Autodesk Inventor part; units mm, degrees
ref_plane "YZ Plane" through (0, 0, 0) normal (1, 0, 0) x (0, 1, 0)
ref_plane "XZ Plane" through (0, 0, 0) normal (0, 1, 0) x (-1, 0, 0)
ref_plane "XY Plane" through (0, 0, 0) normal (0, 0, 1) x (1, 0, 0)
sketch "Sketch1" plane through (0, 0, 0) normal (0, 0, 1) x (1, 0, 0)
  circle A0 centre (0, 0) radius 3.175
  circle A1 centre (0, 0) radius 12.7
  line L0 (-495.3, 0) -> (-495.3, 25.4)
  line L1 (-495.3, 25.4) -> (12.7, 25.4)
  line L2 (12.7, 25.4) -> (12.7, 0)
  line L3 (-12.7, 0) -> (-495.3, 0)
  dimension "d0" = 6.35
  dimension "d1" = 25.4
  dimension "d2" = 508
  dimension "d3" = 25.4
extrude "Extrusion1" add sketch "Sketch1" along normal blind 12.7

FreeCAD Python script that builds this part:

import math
import FreeCAD as App
import Part
import Sketcher
Q = App.Units.Quantity

doc = App.newDocument("Part")
params = doc.addObject("Spreadsheet::Sheet", "Params")
for row, (alias, value) in enumerate([
    ("sketch1_radius", "0.5 in"),
    ("sketch1_diameter", "0.25 in"),
    ("sketch1_width", "20 in"),
    ("sketch1_height", "1 in"),
    ("pad1_length", "0.5 in"),
], start=1):
    params.set(f"A{row}", alias)
    params.set(f"B{row}", "=" + value)
    params.setAlias(f"B{row}", alias)

body = doc.addObject("PartDesign::Body", "Body")

# Sketch on XY plane
sketch1 = body.newObject("Sketcher::SketchObject", "Sketch")
sketch1.AttachmentSupport = (doc.getObject("XY_Plane"), [""])
sketch1.MapMode = "FlatFace"
sketch1.addGeometry([
    Part.ArcOfCircle(Part.Circle(App.Vector(0, 0, 0), App.Vector(0, 0, 1), 12.7), math.radians(180), math.radians(360)),  # 0
    Part.LineSegment(App.Vector(12.7, 0, 0), App.Vector(12.7, 25.4, 0)),  # 1
    Part.LineSegment(App.Vector(12.7, 25.4, 0), App.Vector(-495.3, 25.4, 0)),  # 2
    Part.LineSegment(App.Vector(-495.3, 25.4, 0), App.Vector(-495.3, 0, 0)),  # 3
    Part.LineSegment(App.Vector(-495.3, 0, 0), App.Vector(-12.7, 0, 0)),  # 4
    Part.Circle(App.Vector(0, 0, 0), App.Vector(0, 0, 1), 3.175),  # 5
], False)
sketch1.addConstraint([
    Sketcher.Constraint("Tangent", 0, 2, 1, 1),
    Sketcher.Constraint("Coincident", 1, 2, 2, 1),
    Sketcher.Constraint("Coincident", 2, 2, 3, 1),
    Sketcher.Constraint("Coincident", 3, 2, 4, 1),
    Sketcher.Constraint("Coincident", 4, 2, 0, 1),
    Sketcher.Constraint("Vertical", 1),
    Sketcher.Constraint("Horizontal", 2),
    Sketcher.Constraint("Vertical", 3),
    Sketcher.Constraint("Horizontal", 4),
    Sketcher.Constraint("Coincident", 0, 3, -1, 1),
    Sketcher.Constraint("Coincident", 5, 3, -1, 1),
    Sketcher.Constraint("PointOnObject", 3, 2, -1),
    Sketcher.Constraint("Radius", 0, Q("0.5 in")),
    Sketcher.Constraint("Diameter", 5, Q("0.25 in")),
    Sketcher.Constraint("DistanceX", 2, 2, 2, 1, Q("20 in")),
    Sketcher.Constraint("DistanceY", 1, 1, 1, 2, Q("1 in")),
])
sketch1.setExpression("Constraints[12]", "Params.sketch1_radius")
sketch1.setExpression("Constraints[13]", "Params.sketch1_diameter")
sketch1.setExpression("Constraints[14]", "Params.sketch1_width")
sketch1.setExpression("Constraints[15]", "Params.sketch1_height")
pad1 = body.newObject("PartDesign::Pad", "Pad")
pad1.Profile = sketch1
pad1.setExpression("Length", "Params.pad1_length")

doc.recompute()
